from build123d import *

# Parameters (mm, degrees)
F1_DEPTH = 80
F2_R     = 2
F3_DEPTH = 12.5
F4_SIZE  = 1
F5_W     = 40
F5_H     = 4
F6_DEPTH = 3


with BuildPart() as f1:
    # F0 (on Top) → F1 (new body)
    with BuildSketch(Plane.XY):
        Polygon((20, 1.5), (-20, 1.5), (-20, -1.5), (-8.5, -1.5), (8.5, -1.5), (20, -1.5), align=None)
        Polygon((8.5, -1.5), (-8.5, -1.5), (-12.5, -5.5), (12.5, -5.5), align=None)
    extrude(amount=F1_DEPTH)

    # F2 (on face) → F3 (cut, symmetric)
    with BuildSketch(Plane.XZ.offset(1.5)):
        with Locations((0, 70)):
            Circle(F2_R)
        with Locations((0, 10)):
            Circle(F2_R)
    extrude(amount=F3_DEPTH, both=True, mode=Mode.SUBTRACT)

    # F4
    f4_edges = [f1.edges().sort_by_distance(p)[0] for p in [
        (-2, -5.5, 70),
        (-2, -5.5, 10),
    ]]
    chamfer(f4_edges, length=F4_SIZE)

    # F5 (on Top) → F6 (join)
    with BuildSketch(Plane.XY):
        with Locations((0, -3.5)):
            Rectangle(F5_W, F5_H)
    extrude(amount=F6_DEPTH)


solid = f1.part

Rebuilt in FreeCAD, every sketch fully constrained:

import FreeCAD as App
import Part
import Sketcher

V = App.Vector
Q = App.Units.Quantity


def edges_at(feature, points):
    """Names of the edges that pass closest to the given points."""
    edges = feature.Shape.Edges
    near = lambda p: min(range(len(edges)), key=lambda i: edges[i].distToShape(Part.Vertex(*p))[0])
    return sorted({f"Edge{near(p) + 1}" for p in points})


def add_polygon(sketch, points):
    """Adds a closed chain of lines whose ends are joined by coincident constraints."""
    first, n = sketch.GeometryCount, len(points)
    for a, b in zip(points, points[1:] + points[:1]):
        sketch.addGeometry(Part.LineSegment(App.Vector(*a, 0), App.Vector(*b, 0)), False)
    for i in range(n):
        sketch.addConstraint(Sketcher.Constraint("Coincident", first + i, 2, first + (i + 1) % n, 1))

doc = App.newDocument("Part")
body = doc.addObject("PartDesign::Body", "Body")

sketch1 = body.newObject("Sketcher::SketchObject", "Sketch")
sketch1.AttachmentSupport = (doc.getObject("XY_Plane"), [""])
sketch1.MapMode = "FlatFace"
add_polygon(sketch1, [(20, 1.5), (-20, 1.5), (-20, -1.5), (-8.5, -1.5), (-12.5, -5.5), (12.5, -5.5), (8.5, -1.5), (20, -1.5)])
sketch1.addConstraint(Sketcher.Constraint("Horizontal", 0))
sketch1.addConstraint(Sketcher.Constraint("Vertical", 1))
sketch1.addConstraint(Sketcher.Constraint("Horizontal", 2))
sketch1.addConstraint(Sketcher.Constraint("Horizontal", 4))
sketch1.addConstraint(Sketcher.Constraint("Horizontal", 6))
sketch1.addConstraint(Sketcher.Constraint("Vertical", 7))
sketch1.addConstraint(Sketcher.Constraint("Symmetric", 0, 2, 6, 2, -1, 1))
sketch1.addConstraint(Sketcher.Constraint("Symmetric", 2, 2, 5, 2, -2))
sketch1.addConstraint(Sketcher.Constraint("Perpendicular", 3, 5))
sketch1.addConstraint(Sketcher.Constraint("Equal", 3, 5))
sketch1.addConstraint(Sketcher.Constraint("DistanceX", 0, 2, 0, 1, Q("40 mm")))
sketch1.addConstraint(Sketcher.Constraint("DistanceX", 4, 1, 4, 2, Q("25 mm")))
sketch1.addConstraint(Sketcher.Constraint("DistanceY", 1, 2, 1, 1, Q("3 mm")))
sketch1.addConstraint(Sketcher.Constraint("DistanceX", 2, 1, 2, 2, Q("11.5 mm")))
pad1 = body.newObject("PartDesign::Pad", "Pad")
pad1.Profile = sketch1
pad1.Length = 80

sketch2 = body.newObject("Sketcher::SketchObject", "Sketch001")
sketch2.AttachmentSupport = (doc.getObject("XZ_Plane"), [""])
sketch2.MapMode = "FlatFace"
sketch2.AttachmentOffset = App.Placement(V(0, 0, 1.5), App.Rotation())
sketch2.addGeometry(Part.Circle(V(0, 70, 0), V(0, 0, 1), 2), False)
sketch2.addGeometry(Part.Circle(V(0, 10, 0), V(0, 0, 1), 2), False)
sketch2.addConstraint(Sketcher.Constraint("Equal", 0, 1))
sketch2.addConstraint(Sketcher.Constraint("PointOnObject", 0, 3, -2))
sketch2.addConstraint(Sketcher.Constraint("PointOnObject", 1, 3, -2))
sketch2.addConstraint(Sketcher.Constraint("Diameter", 0, Q("4 mm")))
sketch2.addConstraint(Sketcher.Constraint("DistanceY", -1, 1, 0, 3, Q("70 mm")))
sketch2.addConstraint(Sketcher.Constraint("DistanceY", -1, 1, 1, 3, Q("10 mm")))
pocket1 = body.newObject("PartDesign::Pocket", "Pocket")
pocket1.Profile = sketch2
pocket1.Length = 25
pocket1.Midplane = True
doc.recompute()

chamfer = body.newObject("PartDesign::Chamfer", "Chamfer")
chamfer.Base = (pocket1, edges_at(pocket1, [(-2, -5.5, 70), (-2, -5.5, 10)]))
chamfer.Size = 1

sketch3 = body.newObject("Sketcher::SketchObject", "Sketch002")
sketch3.AttachmentSupport = (doc.getObject("XY_Plane"), [""])
sketch3.MapMode = "FlatFace"
add_polygon(sketch3, [(-20, -1.5), (-20, -5.5), (20, -5.5), (20, -1.5)])
sketch3.addConstraint(Sketcher.Constraint("Vertical", 0))
sketch3.addConstraint(Sketcher.Constraint("Horizontal", 1))
sketch3.addConstraint(Sketcher.Constraint("Vertical", 2))
sketch3.addConstraint(Sketcher.Constraint("Horizontal", 3))
sketch3.addConstraint(Sketcher.Constraint("DistanceX", 1, 1, 1, 2, Q("40 mm")))
sketch3.addConstraint(Sketcher.Constraint("DistanceY", 0, 2, 0, 1, Q("4 mm")))
sketch3.addConstraint(Sketcher.Constraint("DistanceX", 0, 2, -1, 1, Q("20 mm")))
sketch3.addConstraint(Sketcher.Constraint("DistanceY", 0, 2, -1, 1, Q("5.5 mm")))
pad2 = body.newObject("PartDesign::Pad", "Pad001")
pad2.Profile = sketch3
pad2.Length = 3

doc.recompute()
